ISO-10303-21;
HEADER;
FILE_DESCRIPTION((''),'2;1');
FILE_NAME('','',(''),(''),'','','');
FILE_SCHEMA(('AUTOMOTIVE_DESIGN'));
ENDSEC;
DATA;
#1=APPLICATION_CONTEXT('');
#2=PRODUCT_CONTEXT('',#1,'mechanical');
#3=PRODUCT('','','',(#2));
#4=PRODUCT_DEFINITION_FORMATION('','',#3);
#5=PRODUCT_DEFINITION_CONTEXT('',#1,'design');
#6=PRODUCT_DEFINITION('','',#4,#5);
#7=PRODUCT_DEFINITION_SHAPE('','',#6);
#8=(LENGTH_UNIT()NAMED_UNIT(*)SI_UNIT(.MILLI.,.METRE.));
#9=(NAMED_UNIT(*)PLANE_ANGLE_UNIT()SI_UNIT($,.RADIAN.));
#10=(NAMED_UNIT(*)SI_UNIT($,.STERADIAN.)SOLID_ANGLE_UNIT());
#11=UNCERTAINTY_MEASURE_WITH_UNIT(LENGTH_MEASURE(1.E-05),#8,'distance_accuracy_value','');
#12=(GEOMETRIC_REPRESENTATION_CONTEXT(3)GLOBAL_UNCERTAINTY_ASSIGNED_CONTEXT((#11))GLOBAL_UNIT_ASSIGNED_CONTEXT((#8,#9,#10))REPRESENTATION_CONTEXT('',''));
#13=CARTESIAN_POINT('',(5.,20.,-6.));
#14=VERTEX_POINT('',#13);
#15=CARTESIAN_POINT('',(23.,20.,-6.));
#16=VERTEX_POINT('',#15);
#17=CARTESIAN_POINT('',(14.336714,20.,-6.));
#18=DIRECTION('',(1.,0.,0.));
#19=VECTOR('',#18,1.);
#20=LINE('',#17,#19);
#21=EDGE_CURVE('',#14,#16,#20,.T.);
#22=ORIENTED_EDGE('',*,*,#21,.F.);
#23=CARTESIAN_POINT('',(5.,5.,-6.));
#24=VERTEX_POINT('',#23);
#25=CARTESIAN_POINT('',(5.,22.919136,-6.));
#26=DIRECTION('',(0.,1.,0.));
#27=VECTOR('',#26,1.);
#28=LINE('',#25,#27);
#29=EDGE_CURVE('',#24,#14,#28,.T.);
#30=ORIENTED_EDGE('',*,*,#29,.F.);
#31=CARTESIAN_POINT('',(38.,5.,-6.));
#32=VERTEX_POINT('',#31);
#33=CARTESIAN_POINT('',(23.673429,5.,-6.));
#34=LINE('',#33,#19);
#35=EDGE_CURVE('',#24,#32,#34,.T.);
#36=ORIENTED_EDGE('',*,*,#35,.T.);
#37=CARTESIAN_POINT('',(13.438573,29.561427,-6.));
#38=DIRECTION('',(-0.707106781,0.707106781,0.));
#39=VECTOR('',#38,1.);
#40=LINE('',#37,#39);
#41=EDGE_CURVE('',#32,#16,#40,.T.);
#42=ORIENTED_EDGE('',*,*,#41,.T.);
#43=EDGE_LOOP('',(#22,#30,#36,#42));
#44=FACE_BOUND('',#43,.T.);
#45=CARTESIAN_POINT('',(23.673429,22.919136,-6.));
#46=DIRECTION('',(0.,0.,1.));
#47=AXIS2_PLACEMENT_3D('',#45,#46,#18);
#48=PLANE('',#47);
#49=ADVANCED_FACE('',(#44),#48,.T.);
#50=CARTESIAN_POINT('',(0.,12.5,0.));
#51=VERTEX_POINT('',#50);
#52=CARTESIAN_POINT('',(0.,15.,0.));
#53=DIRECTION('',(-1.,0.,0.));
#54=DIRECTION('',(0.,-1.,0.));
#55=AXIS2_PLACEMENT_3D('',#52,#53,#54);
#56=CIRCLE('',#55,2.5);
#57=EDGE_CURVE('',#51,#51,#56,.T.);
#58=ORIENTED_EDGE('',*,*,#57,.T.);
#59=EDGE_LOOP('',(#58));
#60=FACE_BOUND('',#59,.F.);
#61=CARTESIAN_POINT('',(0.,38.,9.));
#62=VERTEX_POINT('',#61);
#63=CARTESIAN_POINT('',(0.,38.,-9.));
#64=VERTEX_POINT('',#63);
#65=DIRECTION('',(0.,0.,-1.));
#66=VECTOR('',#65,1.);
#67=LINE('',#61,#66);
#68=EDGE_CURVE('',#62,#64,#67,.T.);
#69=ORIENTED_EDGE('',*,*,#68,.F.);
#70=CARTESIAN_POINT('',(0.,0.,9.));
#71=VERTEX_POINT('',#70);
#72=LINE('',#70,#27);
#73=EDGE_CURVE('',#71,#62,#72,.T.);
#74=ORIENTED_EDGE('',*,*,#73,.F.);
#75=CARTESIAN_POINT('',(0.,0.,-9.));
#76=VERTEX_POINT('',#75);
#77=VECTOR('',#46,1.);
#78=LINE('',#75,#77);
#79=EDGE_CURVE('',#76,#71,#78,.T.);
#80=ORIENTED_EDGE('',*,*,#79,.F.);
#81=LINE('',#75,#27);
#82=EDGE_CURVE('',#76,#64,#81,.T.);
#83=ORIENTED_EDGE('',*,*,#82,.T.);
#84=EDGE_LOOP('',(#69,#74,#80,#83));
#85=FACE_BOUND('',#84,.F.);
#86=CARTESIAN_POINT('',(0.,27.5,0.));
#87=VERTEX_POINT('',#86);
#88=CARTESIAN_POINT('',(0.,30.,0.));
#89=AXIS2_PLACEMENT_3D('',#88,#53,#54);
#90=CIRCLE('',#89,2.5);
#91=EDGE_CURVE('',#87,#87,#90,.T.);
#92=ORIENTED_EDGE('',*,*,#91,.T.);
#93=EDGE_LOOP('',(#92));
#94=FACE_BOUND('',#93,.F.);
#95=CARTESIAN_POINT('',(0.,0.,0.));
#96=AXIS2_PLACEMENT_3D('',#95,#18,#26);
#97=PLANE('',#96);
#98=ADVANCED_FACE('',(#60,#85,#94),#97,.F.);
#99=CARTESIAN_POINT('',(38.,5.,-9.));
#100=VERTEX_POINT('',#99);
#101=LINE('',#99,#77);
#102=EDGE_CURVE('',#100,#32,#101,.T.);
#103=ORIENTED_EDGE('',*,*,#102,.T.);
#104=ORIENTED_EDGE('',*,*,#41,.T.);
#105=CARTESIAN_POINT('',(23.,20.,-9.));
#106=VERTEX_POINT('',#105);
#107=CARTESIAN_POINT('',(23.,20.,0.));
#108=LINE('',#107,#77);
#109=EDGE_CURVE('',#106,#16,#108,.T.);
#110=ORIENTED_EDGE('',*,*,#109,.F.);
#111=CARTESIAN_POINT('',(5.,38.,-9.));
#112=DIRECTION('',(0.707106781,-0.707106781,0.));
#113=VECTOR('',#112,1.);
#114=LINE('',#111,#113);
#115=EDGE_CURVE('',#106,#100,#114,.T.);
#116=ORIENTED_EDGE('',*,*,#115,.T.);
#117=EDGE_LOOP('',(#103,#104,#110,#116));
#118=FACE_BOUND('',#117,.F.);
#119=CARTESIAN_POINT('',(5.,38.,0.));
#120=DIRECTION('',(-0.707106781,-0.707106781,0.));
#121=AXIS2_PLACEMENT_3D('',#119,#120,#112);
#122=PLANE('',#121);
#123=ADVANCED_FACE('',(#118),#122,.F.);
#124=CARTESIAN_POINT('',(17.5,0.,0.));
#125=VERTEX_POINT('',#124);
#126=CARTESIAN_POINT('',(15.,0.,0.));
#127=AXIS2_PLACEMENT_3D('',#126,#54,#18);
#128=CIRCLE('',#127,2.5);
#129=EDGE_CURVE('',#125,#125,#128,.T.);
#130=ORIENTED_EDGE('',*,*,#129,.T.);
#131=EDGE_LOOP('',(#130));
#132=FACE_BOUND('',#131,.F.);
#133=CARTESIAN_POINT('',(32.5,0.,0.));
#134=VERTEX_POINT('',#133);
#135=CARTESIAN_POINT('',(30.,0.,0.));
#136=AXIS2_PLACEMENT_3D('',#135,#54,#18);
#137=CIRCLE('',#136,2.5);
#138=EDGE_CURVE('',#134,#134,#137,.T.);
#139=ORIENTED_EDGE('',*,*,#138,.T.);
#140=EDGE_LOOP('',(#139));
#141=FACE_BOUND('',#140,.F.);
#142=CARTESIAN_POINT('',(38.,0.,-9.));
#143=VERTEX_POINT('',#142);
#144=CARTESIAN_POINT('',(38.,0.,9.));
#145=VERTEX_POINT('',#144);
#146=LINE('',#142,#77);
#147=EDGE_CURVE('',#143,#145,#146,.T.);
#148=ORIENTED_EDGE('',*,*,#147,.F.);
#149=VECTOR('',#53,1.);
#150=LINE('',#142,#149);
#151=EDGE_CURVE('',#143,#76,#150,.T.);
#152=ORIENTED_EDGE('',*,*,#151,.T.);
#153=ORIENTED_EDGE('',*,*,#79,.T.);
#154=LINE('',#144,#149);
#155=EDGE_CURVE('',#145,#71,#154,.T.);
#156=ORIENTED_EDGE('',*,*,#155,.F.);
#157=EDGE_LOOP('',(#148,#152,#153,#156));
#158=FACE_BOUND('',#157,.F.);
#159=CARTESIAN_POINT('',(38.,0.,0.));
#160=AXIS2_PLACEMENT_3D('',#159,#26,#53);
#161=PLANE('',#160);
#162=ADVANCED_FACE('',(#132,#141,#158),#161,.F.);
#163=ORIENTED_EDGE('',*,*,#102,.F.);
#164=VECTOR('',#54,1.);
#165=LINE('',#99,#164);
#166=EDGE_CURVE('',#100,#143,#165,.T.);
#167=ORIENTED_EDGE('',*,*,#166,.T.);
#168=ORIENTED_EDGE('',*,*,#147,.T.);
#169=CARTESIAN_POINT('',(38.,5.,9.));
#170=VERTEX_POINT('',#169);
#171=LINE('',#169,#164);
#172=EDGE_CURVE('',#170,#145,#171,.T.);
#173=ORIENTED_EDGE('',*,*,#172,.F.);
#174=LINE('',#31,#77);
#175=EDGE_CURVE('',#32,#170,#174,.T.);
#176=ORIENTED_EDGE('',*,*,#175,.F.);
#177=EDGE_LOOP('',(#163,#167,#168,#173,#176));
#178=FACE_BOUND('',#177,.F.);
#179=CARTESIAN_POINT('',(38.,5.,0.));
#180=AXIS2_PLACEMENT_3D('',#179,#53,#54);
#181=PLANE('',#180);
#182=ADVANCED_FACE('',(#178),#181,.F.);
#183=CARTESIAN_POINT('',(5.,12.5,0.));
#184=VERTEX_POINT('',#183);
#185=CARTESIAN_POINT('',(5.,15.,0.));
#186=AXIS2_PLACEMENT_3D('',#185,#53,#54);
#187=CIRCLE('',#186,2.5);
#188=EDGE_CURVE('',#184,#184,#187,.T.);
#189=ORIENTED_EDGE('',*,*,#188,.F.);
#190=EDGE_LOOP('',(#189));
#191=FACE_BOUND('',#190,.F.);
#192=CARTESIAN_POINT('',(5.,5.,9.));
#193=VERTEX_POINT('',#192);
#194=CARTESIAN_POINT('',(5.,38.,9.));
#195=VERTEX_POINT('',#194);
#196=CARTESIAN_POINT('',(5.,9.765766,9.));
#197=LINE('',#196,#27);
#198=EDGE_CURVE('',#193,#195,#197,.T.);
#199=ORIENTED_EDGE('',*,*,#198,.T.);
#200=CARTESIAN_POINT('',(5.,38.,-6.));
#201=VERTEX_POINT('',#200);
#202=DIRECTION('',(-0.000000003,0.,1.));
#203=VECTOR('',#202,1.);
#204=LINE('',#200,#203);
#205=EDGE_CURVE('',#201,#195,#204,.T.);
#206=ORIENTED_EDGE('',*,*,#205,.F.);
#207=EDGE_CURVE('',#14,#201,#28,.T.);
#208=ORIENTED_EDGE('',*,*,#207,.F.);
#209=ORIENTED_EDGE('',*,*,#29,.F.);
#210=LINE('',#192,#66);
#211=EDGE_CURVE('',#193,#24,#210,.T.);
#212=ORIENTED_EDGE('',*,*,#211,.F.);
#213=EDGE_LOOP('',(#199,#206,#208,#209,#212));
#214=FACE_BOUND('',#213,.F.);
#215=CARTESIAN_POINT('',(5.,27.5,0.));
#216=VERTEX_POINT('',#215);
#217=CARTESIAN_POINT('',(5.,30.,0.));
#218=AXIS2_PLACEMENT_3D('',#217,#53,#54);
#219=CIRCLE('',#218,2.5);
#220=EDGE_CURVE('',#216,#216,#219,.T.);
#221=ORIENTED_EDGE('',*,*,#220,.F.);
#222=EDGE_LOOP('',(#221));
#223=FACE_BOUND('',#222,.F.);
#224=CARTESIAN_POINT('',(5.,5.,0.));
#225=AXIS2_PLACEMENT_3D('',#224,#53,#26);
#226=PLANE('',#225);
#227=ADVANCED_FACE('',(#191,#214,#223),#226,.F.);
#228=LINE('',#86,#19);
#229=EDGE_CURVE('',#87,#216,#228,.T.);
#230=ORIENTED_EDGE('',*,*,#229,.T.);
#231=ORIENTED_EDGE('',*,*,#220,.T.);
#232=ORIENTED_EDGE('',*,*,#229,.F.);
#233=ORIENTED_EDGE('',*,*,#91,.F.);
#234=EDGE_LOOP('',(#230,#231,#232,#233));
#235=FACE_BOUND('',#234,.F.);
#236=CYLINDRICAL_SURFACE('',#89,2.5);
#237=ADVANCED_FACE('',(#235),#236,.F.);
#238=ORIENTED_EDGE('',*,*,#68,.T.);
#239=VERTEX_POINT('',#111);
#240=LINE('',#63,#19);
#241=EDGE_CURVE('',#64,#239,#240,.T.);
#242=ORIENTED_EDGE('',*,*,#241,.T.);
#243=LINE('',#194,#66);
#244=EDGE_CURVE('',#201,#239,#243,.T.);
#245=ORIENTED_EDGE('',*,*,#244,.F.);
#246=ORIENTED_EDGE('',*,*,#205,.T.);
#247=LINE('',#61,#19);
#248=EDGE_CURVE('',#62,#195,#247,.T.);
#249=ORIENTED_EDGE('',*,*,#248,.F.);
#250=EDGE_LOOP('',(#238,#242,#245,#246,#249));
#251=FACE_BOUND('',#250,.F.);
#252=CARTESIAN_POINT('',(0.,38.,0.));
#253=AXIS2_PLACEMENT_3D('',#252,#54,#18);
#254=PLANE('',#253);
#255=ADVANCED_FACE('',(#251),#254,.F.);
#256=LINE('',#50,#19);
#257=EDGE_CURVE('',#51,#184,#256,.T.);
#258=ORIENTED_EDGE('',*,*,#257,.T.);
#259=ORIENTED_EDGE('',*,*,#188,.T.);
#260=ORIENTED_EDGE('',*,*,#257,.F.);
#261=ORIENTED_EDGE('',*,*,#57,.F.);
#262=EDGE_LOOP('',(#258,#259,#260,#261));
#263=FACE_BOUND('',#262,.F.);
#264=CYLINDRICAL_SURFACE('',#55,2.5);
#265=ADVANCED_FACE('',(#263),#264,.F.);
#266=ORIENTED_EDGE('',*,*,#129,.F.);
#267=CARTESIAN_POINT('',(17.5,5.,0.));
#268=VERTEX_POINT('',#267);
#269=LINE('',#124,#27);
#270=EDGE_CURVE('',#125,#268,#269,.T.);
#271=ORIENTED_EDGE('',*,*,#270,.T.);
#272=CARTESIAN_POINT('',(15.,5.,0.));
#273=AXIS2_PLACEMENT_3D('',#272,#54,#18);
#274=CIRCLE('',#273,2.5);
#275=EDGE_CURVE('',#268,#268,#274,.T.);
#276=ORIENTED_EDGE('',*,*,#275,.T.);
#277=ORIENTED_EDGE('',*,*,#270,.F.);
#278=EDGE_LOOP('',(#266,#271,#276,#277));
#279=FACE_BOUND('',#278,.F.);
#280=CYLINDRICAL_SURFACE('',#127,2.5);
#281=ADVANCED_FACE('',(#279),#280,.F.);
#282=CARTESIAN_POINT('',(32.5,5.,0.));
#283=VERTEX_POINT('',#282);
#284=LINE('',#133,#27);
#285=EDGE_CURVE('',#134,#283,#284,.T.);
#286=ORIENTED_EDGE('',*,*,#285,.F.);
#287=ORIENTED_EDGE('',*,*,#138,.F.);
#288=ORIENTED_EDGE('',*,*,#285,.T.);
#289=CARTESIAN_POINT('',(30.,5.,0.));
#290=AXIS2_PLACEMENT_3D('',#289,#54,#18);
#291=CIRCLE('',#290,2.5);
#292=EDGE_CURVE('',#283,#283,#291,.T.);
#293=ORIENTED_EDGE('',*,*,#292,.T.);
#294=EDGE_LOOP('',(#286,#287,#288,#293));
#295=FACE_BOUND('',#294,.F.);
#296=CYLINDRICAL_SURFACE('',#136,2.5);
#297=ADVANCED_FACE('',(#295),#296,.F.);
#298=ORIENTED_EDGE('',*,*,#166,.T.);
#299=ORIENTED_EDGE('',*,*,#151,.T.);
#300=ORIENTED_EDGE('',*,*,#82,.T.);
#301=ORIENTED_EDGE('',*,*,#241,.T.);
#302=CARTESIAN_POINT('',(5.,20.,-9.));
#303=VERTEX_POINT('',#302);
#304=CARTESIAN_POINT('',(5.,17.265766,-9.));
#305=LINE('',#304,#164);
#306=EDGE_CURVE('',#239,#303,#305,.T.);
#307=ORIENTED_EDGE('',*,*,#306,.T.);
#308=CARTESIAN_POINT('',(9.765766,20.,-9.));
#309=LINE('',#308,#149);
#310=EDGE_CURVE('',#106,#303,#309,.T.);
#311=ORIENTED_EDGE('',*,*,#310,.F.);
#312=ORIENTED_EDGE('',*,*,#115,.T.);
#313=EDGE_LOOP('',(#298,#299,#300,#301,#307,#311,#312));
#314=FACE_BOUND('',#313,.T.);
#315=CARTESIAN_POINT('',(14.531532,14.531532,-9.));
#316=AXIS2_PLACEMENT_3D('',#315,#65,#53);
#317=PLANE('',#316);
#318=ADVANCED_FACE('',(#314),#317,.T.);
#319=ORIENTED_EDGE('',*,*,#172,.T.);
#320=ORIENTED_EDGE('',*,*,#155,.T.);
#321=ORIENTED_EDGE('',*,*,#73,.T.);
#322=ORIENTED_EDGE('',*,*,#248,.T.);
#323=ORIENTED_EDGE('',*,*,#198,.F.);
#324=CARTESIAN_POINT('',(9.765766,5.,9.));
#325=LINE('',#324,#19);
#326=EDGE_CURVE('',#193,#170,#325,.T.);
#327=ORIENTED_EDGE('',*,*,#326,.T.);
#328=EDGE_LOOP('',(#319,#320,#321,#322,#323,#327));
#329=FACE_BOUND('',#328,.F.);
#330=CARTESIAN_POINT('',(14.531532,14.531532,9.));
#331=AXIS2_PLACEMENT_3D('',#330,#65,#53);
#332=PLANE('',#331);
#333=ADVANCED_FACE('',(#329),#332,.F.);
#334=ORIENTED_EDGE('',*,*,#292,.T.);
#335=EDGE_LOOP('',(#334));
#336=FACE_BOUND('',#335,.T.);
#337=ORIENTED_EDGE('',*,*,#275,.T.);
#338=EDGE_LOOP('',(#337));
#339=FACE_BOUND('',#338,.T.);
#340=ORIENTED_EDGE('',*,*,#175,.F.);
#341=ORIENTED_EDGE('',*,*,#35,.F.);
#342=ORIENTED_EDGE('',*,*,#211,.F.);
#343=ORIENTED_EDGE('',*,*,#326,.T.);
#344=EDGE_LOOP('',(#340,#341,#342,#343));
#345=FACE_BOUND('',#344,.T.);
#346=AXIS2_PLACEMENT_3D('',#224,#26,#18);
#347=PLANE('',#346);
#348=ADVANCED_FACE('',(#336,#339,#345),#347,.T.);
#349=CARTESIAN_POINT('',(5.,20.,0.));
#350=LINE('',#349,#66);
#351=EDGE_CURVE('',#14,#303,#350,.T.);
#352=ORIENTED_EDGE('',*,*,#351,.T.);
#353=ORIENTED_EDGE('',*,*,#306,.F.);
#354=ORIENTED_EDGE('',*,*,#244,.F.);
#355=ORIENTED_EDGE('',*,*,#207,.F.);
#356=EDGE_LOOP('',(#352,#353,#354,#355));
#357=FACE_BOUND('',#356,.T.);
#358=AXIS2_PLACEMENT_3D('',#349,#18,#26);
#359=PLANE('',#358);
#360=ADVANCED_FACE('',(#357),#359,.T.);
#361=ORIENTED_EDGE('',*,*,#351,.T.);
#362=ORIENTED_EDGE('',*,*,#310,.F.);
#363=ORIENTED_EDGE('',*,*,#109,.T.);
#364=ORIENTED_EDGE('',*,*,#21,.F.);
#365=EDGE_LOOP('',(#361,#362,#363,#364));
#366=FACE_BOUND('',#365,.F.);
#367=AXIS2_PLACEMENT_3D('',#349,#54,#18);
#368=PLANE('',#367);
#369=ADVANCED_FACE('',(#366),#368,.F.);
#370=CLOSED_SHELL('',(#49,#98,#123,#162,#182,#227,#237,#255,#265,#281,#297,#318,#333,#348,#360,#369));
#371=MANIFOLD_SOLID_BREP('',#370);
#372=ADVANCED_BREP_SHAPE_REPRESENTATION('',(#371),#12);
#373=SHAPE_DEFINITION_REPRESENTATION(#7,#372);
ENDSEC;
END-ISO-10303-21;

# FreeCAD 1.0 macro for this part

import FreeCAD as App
import Part
import Sketcher
from FreeCAD import Vector
Q = App.Units.Quantity


def add_polygon(sketch, points):
    """Adds a closed chain of lines whose ends are joined by coincident constraints."""
    first, n = sketch.GeometryCount, len(points)
    for a, b in zip(points, points[1:] + points[:1]):
        sketch.addGeometry(Part.LineSegment(App.Vector(*a, 0), App.Vector(*b, 0)), False)
    for i in range(n):
        sketch.addConstraint(Sketcher.Constraint("Coincident", first + i, 2, first + (i + 1) % n, 1))

doc = App.newDocument("Part")
body = doc.addObject("PartDesign::Body", "Body")

# Sketch on XY plane
sketch1 = body.newObject("Sketcher::SketchObject", "Sketch")
sketch1.AttachmentSupport = (doc.getObject("XY_Plane"), [""])
sketch1.MapMode = "FlatFace"
add_polygon(sketch1, [(0, 38), (0, 0), (38, 0), (38, 5), (5, 38)])  # lines 0-4
sketch1.addConstraint([
    Sketcher.Constraint("Vertical", 0),
    Sketcher.Constraint("Horizontal", 1),
    Sketcher.Constraint("Vertical", 2),
    Sketcher.Constraint("Horizontal", 4),
    Sketcher.Constraint("Coincident", 0, 2, -1, 1),
    Sketcher.Constraint("Equal", 1, 0),
    Sketcher.Constraint("Equal", 4, 2),
    Sketcher.Constraint("DistanceX", 1, 1, 1, 2, Q("38 mm")),
    Sketcher.Constraint("DistanceX", 4, 2, 4, 1, Q("5 mm")),
])
pad1 = body.newObject("PartDesign::Pad", "Pad")
pad1.Profile = sketch1
pad1.Length = 18
pad1.Midplane = True

# Sketch on XY plane
sketch2 = body.newObject("Sketcher::SketchObject", "Sketch001")
sketch2.AttachmentSupport = (doc.getObject("XY_Plane"), [""])
sketch2.MapMode = "FlatFace"
add_polygon(sketch2, [(5, 41), (5, 5), (42, 5), (42, 41)])  # lines 0-3
sketch2.addConstraint([
    Sketcher.Constraint("Vertical", 0),
    Sketcher.Constraint("Horizontal", 1),
    Sketcher.Constraint("Vertical", 2),
    Sketcher.Constraint("Horizontal", 3),
    Sketcher.Constraint("DistanceX", -1, 1, 0, 2, Q("5 mm")),
    Sketcher.Constraint("DistanceY", -1, 1, 0, 2, Q("5 mm")),
    Sketcher.Constraint("DistanceX", 1, 1, 1, 2, Q("37.346859 mm")),
    Sketcher.Constraint("DistanceY", 0, 2, 0, 1, Q("35.838272 mm")),
])
pocket1 = body.newObject("PartDesign::Pocket", "Pocket")
pocket1.Profile = sketch2
pocket1.Type = "TwoLengths"
pocket1.Length = 6
pocket1.Length2 = 100

# Sketch on XZ plane
sketch3 = body.newObject("Sketcher::SketchObject", "Sketch002")
sketch3.AttachmentSupport = (doc.getObject("XZ_Plane"), [""])
sketch3.MapMode = "FlatFace"
sketch3.addGeometry([
    Part.Circle(Vector(15, 0, 0), Vector(0, 0, 1), 2.5),
    Part.Circle(Vector(30, 0, 0), Vector(0, 0, 1), 2.5),
], False)
sketch3.addConstraint([
    Sketcher.Constraint("Equal", 0, 1),
    Sketcher.Constraint("PointOnObject", 0, 3, -1),
    Sketcher.Constraint("PointOnObject", 1, 3, -1),
    Sketcher.Constraint("Diameter", 0, Q("5 mm")),
    Sketcher.Constraint("DistanceX", -1, 1, 0, 3, Q("15 mm")),
    Sketcher.Constraint("DistanceX", -1, 1, 1, 3, Q("30 mm")),
])
pocket2 = body.newObject("PartDesign::Pocket", "Pocket001")
pocket2.Profile = sketch3
pocket2.Type = "ThroughAll"

# Sketch on YZ plane
sketch4 = body.newObject("Sketcher::SketchObject", "Sketch003")
sketch4.AttachmentSupport = (doc.getObject("YZ_Plane"), [""])
sketch4.MapMode = "FlatFace"
sketch4.addGeometry([
    Part.Circle(Vector(30, 0, 0), Vector(0, 0, 1), 2.5),
    Part.Circle(Vector(15, 0, 0), Vector(0, 0, 1), 2.5),
], False)
sketch4.addConstraint([
    Sketcher.Constraint("Equal", 0, 1),
    Sketcher.Constraint("PointOnObject", 0, 3, -1),
    Sketcher.Constraint("PointOnObject", 1, 3, -1),
    Sketcher.Constraint("Diameter", 0, Q("5 mm")),
    Sketcher.Constraint("DistanceX", -1, 1, 0, 3, Q("30 mm")),
    Sketcher.Constraint("DistanceX", -1, 1, 1, 3, Q("15 mm")),
])
pocket3 = body.newObject("PartDesign::Pocket", "Pocket002")
pocket3.Profile = sketch4
pocket3.Type = "ThroughAll"
pocket3.Reversed = True

# Sketch on XY plane
sketch5 = body.newObject("Sketcher::SketchObject", "Sketch004")
sketch5.AttachmentSupport = (doc.getObject("XY_Plane"), [""])
sketch5.MapMode = "FlatFace"
add_polygon(sketch5, [(5, 40), (5, 20), (25, 20), (25, 40)])  # lines 0-3
sketch5.addConstraint([
    Sketcher.Constraint("Vertical", 0),
    Sketcher.Constraint("Horizontal", 1),
    Sketcher.Constraint("Vertical", 2),
    Sketcher.Constraint("Horizontal", 3),
    Sketcher.Constraint("Equal", 3, 0),
    Sketcher.Constraint("DistanceX", 1, 1, 1, 2, Q("20 mm")),
    Sketcher.Constraint("DistanceX", -1, 1, 0, 2, Q("5 mm")),
    Sketcher.Constraint("DistanceY", -1, 1, 0, 2, Q("20 mm")),
])
pocket4 = body.newObject("PartDesign::Pocket", "Pocket003")
pocket4.Profile = sketch5
pocket4.Type = "ThroughAll"
pocket4.Midplane = True

doc.recompute()
